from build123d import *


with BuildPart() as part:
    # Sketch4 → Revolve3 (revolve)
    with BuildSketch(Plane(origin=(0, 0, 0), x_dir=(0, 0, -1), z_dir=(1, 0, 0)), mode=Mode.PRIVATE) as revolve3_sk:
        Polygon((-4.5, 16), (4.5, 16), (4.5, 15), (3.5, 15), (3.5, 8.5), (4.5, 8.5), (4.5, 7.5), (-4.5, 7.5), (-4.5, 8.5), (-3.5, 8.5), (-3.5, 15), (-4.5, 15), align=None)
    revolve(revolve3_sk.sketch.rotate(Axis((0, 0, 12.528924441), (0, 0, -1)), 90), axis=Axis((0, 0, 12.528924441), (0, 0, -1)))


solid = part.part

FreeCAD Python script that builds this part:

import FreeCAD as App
import Part
import Sketcher
from FreeCAD import Vector
Q = App.Units.Quantity


def add_polygon(sketch, points):
    """Adds a closed chain of lines whose ends are joined by coincident constraints."""
    first, n = sketch.GeometryCount, len(points)
    for a, b in zip(points, points[1:] + points[:1]):
        sketch.addGeometry(Part.LineSegment(App.Vector(*a, 0), App.Vector(*b, 0)), False)
    for i in range(n):
        sketch.addConstraint(Sketcher.Constraint("Coincident", first + i, 2, first + (i + 1) % n, 1))

doc = App.newDocument("Part")
body = doc.addObject("PartDesign::Body", "Body")

# Sketch on YZ plane
sketch1 = body.newObject("Sketcher::SketchObject", "Sketch")
sketch1.AttachmentSupport = (doc.getObject("YZ_Plane"), [""])
sketch1.MapMode = "FlatFace"
add_polygon(sketch1, [(16, -4.5), (16, 4.5), (15, 4.5), (15, 3.5), (8.5, 3.5), (8.5, 4.5), (7.5, 4.5), (7.5, -4.5), (8.5, -4.5), (8.5, -3.5), (15, -3.5), (15, -4.5)])  # lines 0-11
sketch1.addConstraint([
    Sketcher.Constraint("Vertical", 0),
    Sketcher.Constraint("Horizontal", 1),
    Sketcher.Constraint("Vertical", 2),
    Sketcher.Constraint("Horizontal", 3),
    Sketcher.Constraint("Vertical", 4),
    Sketcher.Constraint("Horizontal", 5),
    Sketcher.Constraint("Vertical", 6),
    Sketcher.Constraint("Horizontal", 7),
    Sketcher.Constraint("Vertical", 8),
    Sketcher.Constraint("Horizontal", 9),
    Sketcher.Constraint("Vertical", 10),
    Sketcher.Constraint("Horizontal", 11),
    Sketcher.Constraint("Symmetric", 4, 2, 7, 2, -1),
    Sketcher.Constraint("Symmetric", 2, 2, 9, 2, -1),
    Sketcher.Constraint("Horizontal", 1, 2, 4, 2),
    Sketcher.Constraint("Horizontal", 7, 2, 10, 2),
    Sketcher.Constraint("Equal", 1, 5),
    Sketcher.Constraint("Equal", 11, 2),
    Sketcher.Constraint("DistanceX", 1, 2, 1, 1, Q("1 mm")),
    Sketcher.Constraint("DistanceY", 0, 1, 0, 2, Q("9 mm")),
    Sketcher.Constraint("DistanceX", 3, 2, 3, 1, Q("6.5 mm")),
    Sketcher.Constraint("DistanceX", -1, 1, 0, 2, Q("16 mm")),
])
revolution = body.newObject("PartDesign::Revolution", "Revolution")
revolution.Profile = sketch1
revolution.ReferenceAxis = (sketch1, ["V_Axis"])
revolution.Angle = 360

doc.recompute()
